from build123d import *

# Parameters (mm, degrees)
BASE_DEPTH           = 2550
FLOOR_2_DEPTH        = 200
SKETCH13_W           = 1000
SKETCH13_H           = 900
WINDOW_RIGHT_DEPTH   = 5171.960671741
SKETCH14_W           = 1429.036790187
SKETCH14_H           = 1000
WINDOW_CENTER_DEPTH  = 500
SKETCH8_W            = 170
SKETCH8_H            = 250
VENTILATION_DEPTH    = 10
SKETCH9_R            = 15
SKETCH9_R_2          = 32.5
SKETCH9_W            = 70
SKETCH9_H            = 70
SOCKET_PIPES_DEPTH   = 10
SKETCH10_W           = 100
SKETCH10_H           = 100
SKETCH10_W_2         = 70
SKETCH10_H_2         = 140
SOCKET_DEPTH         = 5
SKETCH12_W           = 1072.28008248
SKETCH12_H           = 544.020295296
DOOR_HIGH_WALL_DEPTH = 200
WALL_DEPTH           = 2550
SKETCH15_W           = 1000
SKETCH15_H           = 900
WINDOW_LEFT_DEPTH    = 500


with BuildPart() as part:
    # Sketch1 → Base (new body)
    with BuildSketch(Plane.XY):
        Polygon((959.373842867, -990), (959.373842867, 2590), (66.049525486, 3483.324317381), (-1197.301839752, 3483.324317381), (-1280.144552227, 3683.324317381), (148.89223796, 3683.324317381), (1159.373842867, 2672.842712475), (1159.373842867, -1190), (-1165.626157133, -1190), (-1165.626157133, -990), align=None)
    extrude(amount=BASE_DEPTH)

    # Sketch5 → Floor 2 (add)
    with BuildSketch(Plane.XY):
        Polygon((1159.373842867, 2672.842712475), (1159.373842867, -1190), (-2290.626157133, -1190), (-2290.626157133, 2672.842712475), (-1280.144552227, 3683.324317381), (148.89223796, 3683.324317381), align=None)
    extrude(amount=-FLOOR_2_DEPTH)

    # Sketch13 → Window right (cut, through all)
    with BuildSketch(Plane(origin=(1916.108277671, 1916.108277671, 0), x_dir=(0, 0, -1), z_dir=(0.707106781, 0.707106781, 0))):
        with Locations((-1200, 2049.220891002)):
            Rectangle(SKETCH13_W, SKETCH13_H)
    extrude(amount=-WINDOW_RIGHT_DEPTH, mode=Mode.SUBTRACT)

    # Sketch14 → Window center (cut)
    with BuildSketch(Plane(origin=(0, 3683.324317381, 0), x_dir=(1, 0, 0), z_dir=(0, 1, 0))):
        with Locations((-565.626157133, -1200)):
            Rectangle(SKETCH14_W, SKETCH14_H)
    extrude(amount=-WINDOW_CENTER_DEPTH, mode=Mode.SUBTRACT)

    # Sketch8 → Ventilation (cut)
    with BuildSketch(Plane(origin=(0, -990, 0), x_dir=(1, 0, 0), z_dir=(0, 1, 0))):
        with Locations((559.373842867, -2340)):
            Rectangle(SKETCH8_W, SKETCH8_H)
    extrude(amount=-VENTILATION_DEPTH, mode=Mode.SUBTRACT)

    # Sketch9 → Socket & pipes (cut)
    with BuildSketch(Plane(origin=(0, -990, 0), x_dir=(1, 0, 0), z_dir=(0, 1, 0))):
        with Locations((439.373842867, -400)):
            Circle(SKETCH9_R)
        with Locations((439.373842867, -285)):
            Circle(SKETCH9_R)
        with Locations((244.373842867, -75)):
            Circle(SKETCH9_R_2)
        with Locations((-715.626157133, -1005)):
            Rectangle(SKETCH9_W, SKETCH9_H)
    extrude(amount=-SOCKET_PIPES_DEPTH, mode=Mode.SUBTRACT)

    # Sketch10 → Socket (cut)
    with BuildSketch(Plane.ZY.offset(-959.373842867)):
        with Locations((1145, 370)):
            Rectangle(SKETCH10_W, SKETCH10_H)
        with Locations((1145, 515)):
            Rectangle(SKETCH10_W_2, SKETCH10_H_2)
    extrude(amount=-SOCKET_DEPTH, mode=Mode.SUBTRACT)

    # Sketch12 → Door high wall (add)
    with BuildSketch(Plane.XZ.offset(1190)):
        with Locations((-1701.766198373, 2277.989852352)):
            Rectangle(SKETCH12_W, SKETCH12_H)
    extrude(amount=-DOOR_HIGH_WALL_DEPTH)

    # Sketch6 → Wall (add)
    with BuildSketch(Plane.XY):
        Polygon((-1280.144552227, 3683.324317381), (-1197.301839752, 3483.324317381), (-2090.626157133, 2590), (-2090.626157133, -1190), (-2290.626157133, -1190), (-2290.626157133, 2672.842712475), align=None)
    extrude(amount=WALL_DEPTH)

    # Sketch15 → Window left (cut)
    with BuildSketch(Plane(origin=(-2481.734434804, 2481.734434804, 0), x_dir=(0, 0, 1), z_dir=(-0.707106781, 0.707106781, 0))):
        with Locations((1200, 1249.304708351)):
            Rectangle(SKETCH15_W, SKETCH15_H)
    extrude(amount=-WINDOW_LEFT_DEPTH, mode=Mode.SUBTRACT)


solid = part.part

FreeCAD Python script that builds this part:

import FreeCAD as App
import Part
import Sketcher
from FreeCAD import Vector
Q = App.Units.Quantity


def add_polygon(sketch, points):
    """Adds a closed chain of lines whose ends are joined by coincident constraints."""
    first, n = sketch.GeometryCount, len(points)
    for a, b in zip(points, points[1:] + points[:1]):
        sketch.addGeometry(Part.LineSegment(App.Vector(*a, 0), App.Vector(*b, 0)), False)
    for i in range(n):
        sketch.addConstraint(Sketcher.Constraint("Coincident", first + i, 2, first + (i + 1) % n, 1))

doc = App.newDocument("Part")
body = doc.addObject("PartDesign::Body", "Body")

sketch1 = body.newObject("Sketcher::SketchObject", "Sketch")
sketch1.AttachmentSupport = (doc.getObject("XY_Plane"), [""])
sketch1.MapMode = "FlatFace"
add_polygon(sketch1, [(959, 2590), (959, -990), (-1166, -990), (-1166, -1190), (1159, -1190), (1159, 2673), (149, 3683), (-1280, 3683), (-1197, 3483), (66, 3483)])
sketch1.addConstraint(Sketcher.Constraint("Vertical", 0))
sketch1.addConstraint(Sketcher.Constraint("Horizontal", 1))
sketch1.addConstraint(Sketcher.Constraint("Vertical", 2))
sketch1.addConstraint(Sketcher.Constraint("Horizontal", 3))
sketch1.addConstraint(Sketcher.Constraint("Vertical", 4))
sketch1.addConstraint(Sketcher.Constraint("Horizontal", 6))
sketch1.addConstraint(Sketcher.Constraint("Horizontal", 8))
sketch1.addConstraint(Sketcher.Constraint("Parallel", 5, 9))
sketch1.addConstraint(Sketcher.Constraint("DistanceX", 1, 2, 1, 1, Q("2125 mm")))
sketch1.addConstraint(Sketcher.Constraint("DistanceX", 3, 1, 3, 2, Q("2325 mm")))
sketch1.addConstraint(Sketcher.Constraint("DistanceY", 0, 2, 0, 1, Q("3580 mm")))
sketch1.addConstraint(Sketcher.Constraint("DistanceY", 2, 2, 2, 1, Q("200 mm")))
sketch1.addConstraint(Sketcher.Constraint("Angle", 5, Q("135 deg")))
sketch1.addConstraint(Sketcher.Constraint("DistanceY", 0, 2, -1, 1, Q("990 mm")))
sketch1.addConstraint(Sketcher.Constraint("Angle", 7, Q("-67.5 deg")))
sketch1.addConstraint(Sketcher.Constraint("DistanceY", 7, 2, 6, 2, Q("200 mm")))
sketch1.addConstraint(Sketcher.Constraint("DistanceX", 6, 2, 6, 1, Q("1429.03679 mm")))
sketch1.addConstraint(Sketcher.Constraint("Distance", 5, Q("1429.03679 mm")))
sketch1.addConstraint(Sketcher.Constraint("DistanceX", 8, 1, 8, 2, Q("1263.351365 mm")))
sketch1.addConstraint(Sketcher.Constraint("DistanceX", 7, 2, -1, 1, Q("1197.30184 mm")))
pad1 = body.newObject("PartDesign::Pad", "Pad")
pad1.Profile = sketch1
pad1.Length = 2550

sketch2 = body.newObject("Sketcher::SketchObject", "Sketch001")
sketch2.AttachmentSupport = (doc.getObject("XY_Plane"), [""])
sketch2.MapMode = "FlatFace"
add_polygon(sketch2, [(1159, -1190), (1159, 2673), (149, 3683), (-1280, 3683), (-2291, 2673), (-2291, -1190)])
sketch2.addConstraint(Sketcher.Constraint("Vertical", 0))
sketch2.addConstraint(Sketcher.Constraint("Horizontal", 2))
sketch2.addConstraint(Sketcher.Constraint("Vertical", 4))
sketch2.addConstraint(Sketcher.Constraint("Horizontal", 5))
sketch2.addConstraint(Sketcher.Constraint("Perpendicular", 1, 3))
sketch2.addConstraint(Sketcher.Constraint("Horizontal", 0, 2, 3, 2))
sketch2.addConstraint(Sketcher.Constraint("Equal", 1, 3))
sketch2.addConstraint(Sketcher.Constraint("DistanceX", 5, 1, 5, 2, Q("3450 mm")))
sketch2.addConstraint(Sketcher.Constraint("DistanceY", 4, 2, -1, 1, Q("1190 mm")))
sketch2.addConstraint(Sketcher.Constraint("DistanceX", 2, 2, 2, 1, Q("1429.03679 mm")))
sketch2.addConstraint(Sketcher.Constraint("DistanceY", 0, 1, 0, 2, Q("3862.842712 mm")))
sketch2.addConstraint(Sketcher.Constraint("DistanceX", -1, 1, 0, 2, Q("1159.373843 mm")))
pad2 = body.newObject("PartDesign::Pad", "Pad001")
pad2.Profile = sketch2
pad2.Length = 200
pad2.Reversed = True

sketch3 = body.newObject("Sketcher::SketchObject", "Sketch002")
sketch3.Placement = App.Placement(Vector(1916.108278, 1916.108278, 0), App.Rotation(Vector(0, 0, -1), Vector(-0.707106781, 0.707106781, 0), Vector(0.707106781, 0.707106781, 0), "ZXY"))
add_polygon(sketch3, [(-1700, 2499), (-1700, 1599), (-700, 1599), (-700, 2499)])
sketch3.addConstraint(Sketcher.Constraint("Vertical", 0))
sketch3.addConstraint(Sketcher.Constraint("Horizontal", 1))
sketch3.addConstraint(Sketcher.Constraint("Vertical", 2))
sketch3.addConstraint(Sketcher.Constraint("Horizontal", 3))
sketch3.addConstraint(Sketcher.Constraint("DistanceX", 1, 1, 1, 2, Q("1000 mm")))
sketch3.addConstraint(Sketcher.Constraint("DistanceY", 0, 2, 0, 1, Q("900 mm")))
sketch3.addConstraint(Sketcher.Constraint("DistanceX", 0, 2, -1, 1, Q("1700 mm")))
sketch3.addConstraint(Sketcher.Constraint("DistanceY", -1, 1, 0, 2, Q("1599.22089 mm")))
pocket1 = body.newObject("PartDesign::Pocket", "Pocket")
pocket1.Profile = sketch3
pocket1.Type = "ThroughAll"

sketch4 = body.newObject("Sketcher::SketchObject", "Sketch003")
sketch4.AttachmentSupport = (doc.getObject("XZ_Plane"), [""])
sketch4.MapMode = "FlatFace"
sketch4.AttachmentOffset = App.Placement(Vector(0, 0, -3683.324317), App.Rotation())
add_polygon(sketch4, [(-1280, 700), (-1280, 1700), (149, 1700), (149, 700)])
sketch4.addConstraint(Sketcher.Constraint("Vertical", 0))
sketch4.addConstraint(Sketcher.Constraint("Horizontal", 1))
sketch4.addConstraint(Sketcher.Constraint("Vertical", 2))
sketch4.addConstraint(Sketcher.Constraint("Horizontal", 3))
sketch4.addConstraint(Sketcher.Constraint("DistanceY", 0, 1, 0, 2, Q("1000 mm")))
sketch4.addConstraint(Sketcher.Constraint("DistanceY", -1, 1, 0, 2, Q("1700 mm")))
sketch4.addConstraint(Sketcher.Constraint("DistanceX", 1, 1, 1, 2, Q("1429.03679 mm")))
sketch4.addConstraint(Sketcher.Constraint("DistanceX", 0, 2, -1, 1, Q("1280.144552 mm")))
pocket2 = body.newObject("PartDesign::Pocket", "Pocket001")
pocket2.Profile = sketch4
pocket2.Length = 500
pocket2.Reversed = True

sketch5 = body.newObject("Sketcher::SketchObject", "Sketch004")
sketch5.AttachmentSupport = (doc.getObject("XZ_Plane"), [""])
sketch5.MapMode = "FlatFace"
sketch5.AttachmentOffset = App.Placement(Vector(0, 0, 990), App.Rotation())
add_polygon(sketch5, [(474, 2215), (474, 2465), (644, 2465), (644, 2215)])
sketch5.addConstraint(Sketcher.Constraint("Vertical", 0))
sketch5.addConstraint(Sketcher.Constraint("Horizontal", 1))
sketch5.addConstraint(Sketcher.Constraint("Vertical", 2))
sketch5.addConstraint(Sketcher.Constraint("Horizontal", 3))
sketch5.addConstraint(Sketcher.Constraint("DistanceX", 1, 1, 1, 2, Q("170 mm")))
sketch5.addConstraint(Sketcher.Constraint("DistanceY", 0, 1, 0, 2, Q("250 mm")))
sketch5.addConstraint(Sketcher.Constraint("DistanceY", -1, 1, 0, 2, Q("2465 mm")))
sketch5.addConstraint(Sketcher.Constraint("DistanceX", -1, 1, 0, 2, Q("474.373843 mm")))
pocket3 = body.newObject("PartDesign::Pocket", "Pocket002")
pocket3.Profile = sketch5
pocket3.Length = 10
pocket3.Reversed = True

sketch6 = body.newObject("Sketcher::SketchObject", "Sketch005")
sketch6.AttachmentSupport = (doc.getObject("XZ_Plane"), [""])
sketch6.MapMode = "FlatFace"
sketch6.AttachmentOffset = App.Placement(Vector(0, 0, 990), App.Rotation())
sketch6.addGeometry(Part.Circle(Vector(439, 400, 0), Vector(0, 0, 1), 15), False)
sketch6.addGeometry(Part.Circle(Vector(439, 285, 0), Vector(0, 0, 1), 15), False)
sketch6.addGeometry(Part.Circle(Vector(244, 75, 0), Vector(0, 0, 1), 32), False)
add_polygon(sketch6, [(-751, 970), (-751, 1040), (-681, 1040), (-681, 970)])
sketch6.addConstraint(Sketcher.Constraint("Vertical", 3))
sketch6.addConstraint(Sketcher.Constraint("Horizontal", 4))
sketch6.addConstraint(Sketcher.Constraint("Vertical", 5))
sketch6.addConstraint(Sketcher.Constraint("Horizontal", 6))
sketch6.addConstraint(Sketcher.Constraint("Equal", 0, 1))
sketch6.addConstraint(Sketcher.Constraint("Vertical", 0, 3, 1, 3))
sketch6.addConstraint(Sketcher.Constraint("Equal", 6, 3))
sketch6.addConstraint(Sketcher.Constraint("Diameter", 0, Q("30 mm")))
sketch6.addConstraint(Sketcher.Constraint("Diameter", 2, Q("65 mm")))
sketch6.addConstraint(Sketcher.Constraint("DistanceX", 4, 1, 4, 2, Q("70 mm")))
sketch6.addConstraint(Sketcher.Constraint("DistanceY", -1, 1, 0, 3, Q("400 mm")))
sketch6.addConstraint(Sketcher.Constraint("DistanceY", -1, 1, 1, 3, Q("285 mm")))
sketch6.addConstraint(Sketcher.Constraint("DistanceY", -1, 1, 2, 3, Q("75 mm")))
sketch6.addConstraint(Sketcher.Constraint("DistanceY", -1, 1, 3, 2, Q("1040 mm")))
sketch6.addConstraint(Sketcher.Constraint("DistanceX", 2, 3, 1, 3, Q("195 mm")))
sketch6.addConstraint(Sketcher.Constraint("DistanceX", 3, 2, 0, 3, Q("1190 mm")))
sketch6.addConstraint(Sketcher.Constraint("DistanceX", -1, 1, 0, 3, Q("439.373843 mm")))
pocket4 = body.newObject("PartDesign::Pocket", "Pocket003")
pocket4.Profile = sketch6
pocket4.Length = 10
pocket4.Reversed = True

sketch7 = body.newObject("Sketcher::SketchObject", "Sketch006")
sketch7.AttachmentSupport = (doc.getObject("YZ_Plane"), [""])
sketch7.MapMode = "FlatFace"
sketch7.AttachmentOffset = App.Placement(Vector(0, 0, 959.373843), App.Rotation())
add_polygon(sketch7, [(420, 1095), (320, 1095), (320, 1195), (420, 1195)])
add_polygon(sketch7, [(585, 1110), (445, 1110), (445, 1180), (585, 1180)])
sketch7.addConstraint(Sketcher.Constraint("Horizontal", 0))
sketch7.addConstraint(Sketcher.Constraint("Vertical", 1))
sketch7.addConstraint(Sketcher.Constraint("Horizontal", 2))
sketch7.addConstraint(Sketcher.Constraint("Vertical", 3))
sketch7.addConstraint(Sketcher.Constraint("Horizontal", 4))
sketch7.addConstraint(Sketcher.Constraint("Vertical", 5))
sketch7.addConstraint(Sketcher.Constraint("Horizontal", 6))
sketch7.addConstraint(Sketcher.Constraint("Vertical", 7))
sketch7.addConstraint(Sketcher.Constraint("Equal", 2, 1))
sketch7.addConstraint(Sketcher.Constraint("DistanceX", 0, 2, 0, 1, Q("100 mm")))
sketch7.addConstraint(Sketcher.Constraint("DistanceX", 4, 2, 4, 1, Q("140 mm")))
sketch7.addConstraint(Sketcher.Constraint("DistanceY", 5, 1, 5, 2, Q("70 mm")))
sketch7.addConstraint(Sketcher.Constraint("DistanceX", -1, 1, 0, 2, Q("320 mm")))
sketch7.addConstraint(Sketcher.Constraint("DistanceY", -1, 1, 0, 2, Q("1095 mm")))
sketch7.addConstraint(Sketcher.Constraint("DistanceX", -1, 1, 4, 2, Q("445 mm")))
sketch7.addConstraint(Sketcher.Constraint("DistanceY", -1, 1, 4, 2, Q("1110 mm")))
pocket5 = body.newObject("PartDesign::Pocket", "Pocket004")
pocket5.Profile = sketch7
pocket5.Length = 5
pocket5.Reversed = True

sketch8 = body.newObject("Sketcher::SketchObject", "Sketch007")
sketch8.AttachmentSupport = (doc.getObject("XZ_Plane"), [""])
sketch8.MapMode = "FlatFace"
sketch8.AttachmentOffset = App.Placement(Vector(0, 0, 1190), App.Rotation())
add_polygon(sketch8, [(-2238, 2550), (-2238, 2006), (-1166, 2006), (-1166, 2550)])
sketch8.addConstraint(Sketcher.Constraint("Vertical", 0))
sketch8.addConstraint(Sketcher.Constraint("Horizontal", 1))
sketch8.addConstraint(Sketcher.Constraint("Vertical", 2))
sketch8.addConstraint(Sketcher.Constraint("Horizontal", 3))
sketch8.addConstraint(Sketcher.Constraint("DistanceY", -1, 1, 2, 2, Q("2550 mm")))
sketch8.addConstraint(Sketcher.Constraint("DistanceX", 1, 1, 1, 2, Q("1072.280082 mm")))
sketch8.addConstraint(Sketcher.Constraint("DistanceY", 0, 2, 0, 1, Q("544.020295 mm")))
sketch8.addConstraint(Sketcher.Constraint("DistanceX", 0, 2, -1, 1, Q("2237.90624 mm")))
pad3 = body.newObject("PartDesign::Pad", "Pad002")
pad3.Profile = sketch8
pad3.Length = 200
pad3.Reversed = True

sketch9 = body.newObject("Sketcher::SketchObject", "Sketch008")
sketch9.AttachmentSupport = (doc.getObject("XY_Plane"), [""])
sketch9.MapMode = "FlatFace"
add_polygon(sketch9, [(-1197, 3483), (-1280, 3683), (-2291, 2673), (-2291, -1190), (-2091, -1190), (-2091, 2590)])
sketch9.addConstraint(Sketcher.Constraint("Vertical", 2))
sketch9.addConstraint(Sketcher.Constraint("Horizontal", 3))
sketch9.addConstraint(Sketcher.Constraint("Vertical", 4))
sketch9.addConstraint(Sketcher.Constraint("Parallel", 1, 5))
sketch9.addConstraint(Sketcher.Constraint("DistanceX", 3, 1, 3, 2, Q("200 mm")))
sketch9.addConstraint(Sketcher.Constraint("DistanceY", 4, 1, 4, 2, Q("3780 mm")))
sketch9.addConstraint(Sketcher.Constraint("Angle", 1, Q("-135 deg")))
sketch9.addConstraint(Sketcher.Constraint("DistanceY", 2, 2, -1, 1, Q("1190 mm")))
sketch9.addConstraint(Sketcher.Constraint("Angle", 0, Q("112.5 deg")))
sketch9.addConstraint(Sketcher.Constraint("DistanceY", 5, 2, 0, 2, Q("200 mm")))
sketch9.addConstraint(Sketcher.Constraint("Distance", 1, Q("1429.03679 mm")))
sketch9.addConstraint(Sketcher.Constraint("DistanceX", 5, 2, -1, 1, Q("1197.30184 mm")))
pad4 = body.newObject("PartDesign::Pad", "Pad003")
pad4.Profile = sketch9
pad4.Length = 2550

sketch10 = body.newObject("Sketcher::SketchObject", "Sketch009")
sketch10.Placement = App.Placement(Vector(-2481.734435, 2481.734435, 0), App.Rotation(Vector(0, 0, 1), Vector(0.707106781, 0.707106781, 0), Vector(-0.707106781, 0.707106781, 0), "ZXY"))
add_polygon(sketch10, [(700, 1699), (700, 799), (1700, 799), (1700, 1699)])
sketch10.addConstraint(Sketcher.Constraint("Vertical", 0))
sketch10.addConstraint(Sketcher.Constraint("Horizontal", 1))
sketch10.addConstraint(Sketcher.Constraint("Vertical", 2))
sketch10.addConstraint(Sketcher.Constraint("Horizontal", 3))
sketch10.addConstraint(Sketcher.Constraint("DistanceX", 1, 1, 1, 2, Q("1000 mm")))
sketch10.addConstraint(Sketcher.Constraint("DistanceY", 0, 2, 0, 1, Q("900 mm")))
sketch10.addConstraint(Sketcher.Constraint("DistanceX", -1, 1, 0, 2, Q("700 mm")))
sketch10.addConstraint(Sketcher.Constraint("DistanceY", -1, 1, 0, 2, Q("799.304708 mm")))
pocket6 = body.newObject("PartDesign::Pocket", "Pocket005")
pocket6.Profile = sketch10
pocket6.Length = 500

doc.recompute()
